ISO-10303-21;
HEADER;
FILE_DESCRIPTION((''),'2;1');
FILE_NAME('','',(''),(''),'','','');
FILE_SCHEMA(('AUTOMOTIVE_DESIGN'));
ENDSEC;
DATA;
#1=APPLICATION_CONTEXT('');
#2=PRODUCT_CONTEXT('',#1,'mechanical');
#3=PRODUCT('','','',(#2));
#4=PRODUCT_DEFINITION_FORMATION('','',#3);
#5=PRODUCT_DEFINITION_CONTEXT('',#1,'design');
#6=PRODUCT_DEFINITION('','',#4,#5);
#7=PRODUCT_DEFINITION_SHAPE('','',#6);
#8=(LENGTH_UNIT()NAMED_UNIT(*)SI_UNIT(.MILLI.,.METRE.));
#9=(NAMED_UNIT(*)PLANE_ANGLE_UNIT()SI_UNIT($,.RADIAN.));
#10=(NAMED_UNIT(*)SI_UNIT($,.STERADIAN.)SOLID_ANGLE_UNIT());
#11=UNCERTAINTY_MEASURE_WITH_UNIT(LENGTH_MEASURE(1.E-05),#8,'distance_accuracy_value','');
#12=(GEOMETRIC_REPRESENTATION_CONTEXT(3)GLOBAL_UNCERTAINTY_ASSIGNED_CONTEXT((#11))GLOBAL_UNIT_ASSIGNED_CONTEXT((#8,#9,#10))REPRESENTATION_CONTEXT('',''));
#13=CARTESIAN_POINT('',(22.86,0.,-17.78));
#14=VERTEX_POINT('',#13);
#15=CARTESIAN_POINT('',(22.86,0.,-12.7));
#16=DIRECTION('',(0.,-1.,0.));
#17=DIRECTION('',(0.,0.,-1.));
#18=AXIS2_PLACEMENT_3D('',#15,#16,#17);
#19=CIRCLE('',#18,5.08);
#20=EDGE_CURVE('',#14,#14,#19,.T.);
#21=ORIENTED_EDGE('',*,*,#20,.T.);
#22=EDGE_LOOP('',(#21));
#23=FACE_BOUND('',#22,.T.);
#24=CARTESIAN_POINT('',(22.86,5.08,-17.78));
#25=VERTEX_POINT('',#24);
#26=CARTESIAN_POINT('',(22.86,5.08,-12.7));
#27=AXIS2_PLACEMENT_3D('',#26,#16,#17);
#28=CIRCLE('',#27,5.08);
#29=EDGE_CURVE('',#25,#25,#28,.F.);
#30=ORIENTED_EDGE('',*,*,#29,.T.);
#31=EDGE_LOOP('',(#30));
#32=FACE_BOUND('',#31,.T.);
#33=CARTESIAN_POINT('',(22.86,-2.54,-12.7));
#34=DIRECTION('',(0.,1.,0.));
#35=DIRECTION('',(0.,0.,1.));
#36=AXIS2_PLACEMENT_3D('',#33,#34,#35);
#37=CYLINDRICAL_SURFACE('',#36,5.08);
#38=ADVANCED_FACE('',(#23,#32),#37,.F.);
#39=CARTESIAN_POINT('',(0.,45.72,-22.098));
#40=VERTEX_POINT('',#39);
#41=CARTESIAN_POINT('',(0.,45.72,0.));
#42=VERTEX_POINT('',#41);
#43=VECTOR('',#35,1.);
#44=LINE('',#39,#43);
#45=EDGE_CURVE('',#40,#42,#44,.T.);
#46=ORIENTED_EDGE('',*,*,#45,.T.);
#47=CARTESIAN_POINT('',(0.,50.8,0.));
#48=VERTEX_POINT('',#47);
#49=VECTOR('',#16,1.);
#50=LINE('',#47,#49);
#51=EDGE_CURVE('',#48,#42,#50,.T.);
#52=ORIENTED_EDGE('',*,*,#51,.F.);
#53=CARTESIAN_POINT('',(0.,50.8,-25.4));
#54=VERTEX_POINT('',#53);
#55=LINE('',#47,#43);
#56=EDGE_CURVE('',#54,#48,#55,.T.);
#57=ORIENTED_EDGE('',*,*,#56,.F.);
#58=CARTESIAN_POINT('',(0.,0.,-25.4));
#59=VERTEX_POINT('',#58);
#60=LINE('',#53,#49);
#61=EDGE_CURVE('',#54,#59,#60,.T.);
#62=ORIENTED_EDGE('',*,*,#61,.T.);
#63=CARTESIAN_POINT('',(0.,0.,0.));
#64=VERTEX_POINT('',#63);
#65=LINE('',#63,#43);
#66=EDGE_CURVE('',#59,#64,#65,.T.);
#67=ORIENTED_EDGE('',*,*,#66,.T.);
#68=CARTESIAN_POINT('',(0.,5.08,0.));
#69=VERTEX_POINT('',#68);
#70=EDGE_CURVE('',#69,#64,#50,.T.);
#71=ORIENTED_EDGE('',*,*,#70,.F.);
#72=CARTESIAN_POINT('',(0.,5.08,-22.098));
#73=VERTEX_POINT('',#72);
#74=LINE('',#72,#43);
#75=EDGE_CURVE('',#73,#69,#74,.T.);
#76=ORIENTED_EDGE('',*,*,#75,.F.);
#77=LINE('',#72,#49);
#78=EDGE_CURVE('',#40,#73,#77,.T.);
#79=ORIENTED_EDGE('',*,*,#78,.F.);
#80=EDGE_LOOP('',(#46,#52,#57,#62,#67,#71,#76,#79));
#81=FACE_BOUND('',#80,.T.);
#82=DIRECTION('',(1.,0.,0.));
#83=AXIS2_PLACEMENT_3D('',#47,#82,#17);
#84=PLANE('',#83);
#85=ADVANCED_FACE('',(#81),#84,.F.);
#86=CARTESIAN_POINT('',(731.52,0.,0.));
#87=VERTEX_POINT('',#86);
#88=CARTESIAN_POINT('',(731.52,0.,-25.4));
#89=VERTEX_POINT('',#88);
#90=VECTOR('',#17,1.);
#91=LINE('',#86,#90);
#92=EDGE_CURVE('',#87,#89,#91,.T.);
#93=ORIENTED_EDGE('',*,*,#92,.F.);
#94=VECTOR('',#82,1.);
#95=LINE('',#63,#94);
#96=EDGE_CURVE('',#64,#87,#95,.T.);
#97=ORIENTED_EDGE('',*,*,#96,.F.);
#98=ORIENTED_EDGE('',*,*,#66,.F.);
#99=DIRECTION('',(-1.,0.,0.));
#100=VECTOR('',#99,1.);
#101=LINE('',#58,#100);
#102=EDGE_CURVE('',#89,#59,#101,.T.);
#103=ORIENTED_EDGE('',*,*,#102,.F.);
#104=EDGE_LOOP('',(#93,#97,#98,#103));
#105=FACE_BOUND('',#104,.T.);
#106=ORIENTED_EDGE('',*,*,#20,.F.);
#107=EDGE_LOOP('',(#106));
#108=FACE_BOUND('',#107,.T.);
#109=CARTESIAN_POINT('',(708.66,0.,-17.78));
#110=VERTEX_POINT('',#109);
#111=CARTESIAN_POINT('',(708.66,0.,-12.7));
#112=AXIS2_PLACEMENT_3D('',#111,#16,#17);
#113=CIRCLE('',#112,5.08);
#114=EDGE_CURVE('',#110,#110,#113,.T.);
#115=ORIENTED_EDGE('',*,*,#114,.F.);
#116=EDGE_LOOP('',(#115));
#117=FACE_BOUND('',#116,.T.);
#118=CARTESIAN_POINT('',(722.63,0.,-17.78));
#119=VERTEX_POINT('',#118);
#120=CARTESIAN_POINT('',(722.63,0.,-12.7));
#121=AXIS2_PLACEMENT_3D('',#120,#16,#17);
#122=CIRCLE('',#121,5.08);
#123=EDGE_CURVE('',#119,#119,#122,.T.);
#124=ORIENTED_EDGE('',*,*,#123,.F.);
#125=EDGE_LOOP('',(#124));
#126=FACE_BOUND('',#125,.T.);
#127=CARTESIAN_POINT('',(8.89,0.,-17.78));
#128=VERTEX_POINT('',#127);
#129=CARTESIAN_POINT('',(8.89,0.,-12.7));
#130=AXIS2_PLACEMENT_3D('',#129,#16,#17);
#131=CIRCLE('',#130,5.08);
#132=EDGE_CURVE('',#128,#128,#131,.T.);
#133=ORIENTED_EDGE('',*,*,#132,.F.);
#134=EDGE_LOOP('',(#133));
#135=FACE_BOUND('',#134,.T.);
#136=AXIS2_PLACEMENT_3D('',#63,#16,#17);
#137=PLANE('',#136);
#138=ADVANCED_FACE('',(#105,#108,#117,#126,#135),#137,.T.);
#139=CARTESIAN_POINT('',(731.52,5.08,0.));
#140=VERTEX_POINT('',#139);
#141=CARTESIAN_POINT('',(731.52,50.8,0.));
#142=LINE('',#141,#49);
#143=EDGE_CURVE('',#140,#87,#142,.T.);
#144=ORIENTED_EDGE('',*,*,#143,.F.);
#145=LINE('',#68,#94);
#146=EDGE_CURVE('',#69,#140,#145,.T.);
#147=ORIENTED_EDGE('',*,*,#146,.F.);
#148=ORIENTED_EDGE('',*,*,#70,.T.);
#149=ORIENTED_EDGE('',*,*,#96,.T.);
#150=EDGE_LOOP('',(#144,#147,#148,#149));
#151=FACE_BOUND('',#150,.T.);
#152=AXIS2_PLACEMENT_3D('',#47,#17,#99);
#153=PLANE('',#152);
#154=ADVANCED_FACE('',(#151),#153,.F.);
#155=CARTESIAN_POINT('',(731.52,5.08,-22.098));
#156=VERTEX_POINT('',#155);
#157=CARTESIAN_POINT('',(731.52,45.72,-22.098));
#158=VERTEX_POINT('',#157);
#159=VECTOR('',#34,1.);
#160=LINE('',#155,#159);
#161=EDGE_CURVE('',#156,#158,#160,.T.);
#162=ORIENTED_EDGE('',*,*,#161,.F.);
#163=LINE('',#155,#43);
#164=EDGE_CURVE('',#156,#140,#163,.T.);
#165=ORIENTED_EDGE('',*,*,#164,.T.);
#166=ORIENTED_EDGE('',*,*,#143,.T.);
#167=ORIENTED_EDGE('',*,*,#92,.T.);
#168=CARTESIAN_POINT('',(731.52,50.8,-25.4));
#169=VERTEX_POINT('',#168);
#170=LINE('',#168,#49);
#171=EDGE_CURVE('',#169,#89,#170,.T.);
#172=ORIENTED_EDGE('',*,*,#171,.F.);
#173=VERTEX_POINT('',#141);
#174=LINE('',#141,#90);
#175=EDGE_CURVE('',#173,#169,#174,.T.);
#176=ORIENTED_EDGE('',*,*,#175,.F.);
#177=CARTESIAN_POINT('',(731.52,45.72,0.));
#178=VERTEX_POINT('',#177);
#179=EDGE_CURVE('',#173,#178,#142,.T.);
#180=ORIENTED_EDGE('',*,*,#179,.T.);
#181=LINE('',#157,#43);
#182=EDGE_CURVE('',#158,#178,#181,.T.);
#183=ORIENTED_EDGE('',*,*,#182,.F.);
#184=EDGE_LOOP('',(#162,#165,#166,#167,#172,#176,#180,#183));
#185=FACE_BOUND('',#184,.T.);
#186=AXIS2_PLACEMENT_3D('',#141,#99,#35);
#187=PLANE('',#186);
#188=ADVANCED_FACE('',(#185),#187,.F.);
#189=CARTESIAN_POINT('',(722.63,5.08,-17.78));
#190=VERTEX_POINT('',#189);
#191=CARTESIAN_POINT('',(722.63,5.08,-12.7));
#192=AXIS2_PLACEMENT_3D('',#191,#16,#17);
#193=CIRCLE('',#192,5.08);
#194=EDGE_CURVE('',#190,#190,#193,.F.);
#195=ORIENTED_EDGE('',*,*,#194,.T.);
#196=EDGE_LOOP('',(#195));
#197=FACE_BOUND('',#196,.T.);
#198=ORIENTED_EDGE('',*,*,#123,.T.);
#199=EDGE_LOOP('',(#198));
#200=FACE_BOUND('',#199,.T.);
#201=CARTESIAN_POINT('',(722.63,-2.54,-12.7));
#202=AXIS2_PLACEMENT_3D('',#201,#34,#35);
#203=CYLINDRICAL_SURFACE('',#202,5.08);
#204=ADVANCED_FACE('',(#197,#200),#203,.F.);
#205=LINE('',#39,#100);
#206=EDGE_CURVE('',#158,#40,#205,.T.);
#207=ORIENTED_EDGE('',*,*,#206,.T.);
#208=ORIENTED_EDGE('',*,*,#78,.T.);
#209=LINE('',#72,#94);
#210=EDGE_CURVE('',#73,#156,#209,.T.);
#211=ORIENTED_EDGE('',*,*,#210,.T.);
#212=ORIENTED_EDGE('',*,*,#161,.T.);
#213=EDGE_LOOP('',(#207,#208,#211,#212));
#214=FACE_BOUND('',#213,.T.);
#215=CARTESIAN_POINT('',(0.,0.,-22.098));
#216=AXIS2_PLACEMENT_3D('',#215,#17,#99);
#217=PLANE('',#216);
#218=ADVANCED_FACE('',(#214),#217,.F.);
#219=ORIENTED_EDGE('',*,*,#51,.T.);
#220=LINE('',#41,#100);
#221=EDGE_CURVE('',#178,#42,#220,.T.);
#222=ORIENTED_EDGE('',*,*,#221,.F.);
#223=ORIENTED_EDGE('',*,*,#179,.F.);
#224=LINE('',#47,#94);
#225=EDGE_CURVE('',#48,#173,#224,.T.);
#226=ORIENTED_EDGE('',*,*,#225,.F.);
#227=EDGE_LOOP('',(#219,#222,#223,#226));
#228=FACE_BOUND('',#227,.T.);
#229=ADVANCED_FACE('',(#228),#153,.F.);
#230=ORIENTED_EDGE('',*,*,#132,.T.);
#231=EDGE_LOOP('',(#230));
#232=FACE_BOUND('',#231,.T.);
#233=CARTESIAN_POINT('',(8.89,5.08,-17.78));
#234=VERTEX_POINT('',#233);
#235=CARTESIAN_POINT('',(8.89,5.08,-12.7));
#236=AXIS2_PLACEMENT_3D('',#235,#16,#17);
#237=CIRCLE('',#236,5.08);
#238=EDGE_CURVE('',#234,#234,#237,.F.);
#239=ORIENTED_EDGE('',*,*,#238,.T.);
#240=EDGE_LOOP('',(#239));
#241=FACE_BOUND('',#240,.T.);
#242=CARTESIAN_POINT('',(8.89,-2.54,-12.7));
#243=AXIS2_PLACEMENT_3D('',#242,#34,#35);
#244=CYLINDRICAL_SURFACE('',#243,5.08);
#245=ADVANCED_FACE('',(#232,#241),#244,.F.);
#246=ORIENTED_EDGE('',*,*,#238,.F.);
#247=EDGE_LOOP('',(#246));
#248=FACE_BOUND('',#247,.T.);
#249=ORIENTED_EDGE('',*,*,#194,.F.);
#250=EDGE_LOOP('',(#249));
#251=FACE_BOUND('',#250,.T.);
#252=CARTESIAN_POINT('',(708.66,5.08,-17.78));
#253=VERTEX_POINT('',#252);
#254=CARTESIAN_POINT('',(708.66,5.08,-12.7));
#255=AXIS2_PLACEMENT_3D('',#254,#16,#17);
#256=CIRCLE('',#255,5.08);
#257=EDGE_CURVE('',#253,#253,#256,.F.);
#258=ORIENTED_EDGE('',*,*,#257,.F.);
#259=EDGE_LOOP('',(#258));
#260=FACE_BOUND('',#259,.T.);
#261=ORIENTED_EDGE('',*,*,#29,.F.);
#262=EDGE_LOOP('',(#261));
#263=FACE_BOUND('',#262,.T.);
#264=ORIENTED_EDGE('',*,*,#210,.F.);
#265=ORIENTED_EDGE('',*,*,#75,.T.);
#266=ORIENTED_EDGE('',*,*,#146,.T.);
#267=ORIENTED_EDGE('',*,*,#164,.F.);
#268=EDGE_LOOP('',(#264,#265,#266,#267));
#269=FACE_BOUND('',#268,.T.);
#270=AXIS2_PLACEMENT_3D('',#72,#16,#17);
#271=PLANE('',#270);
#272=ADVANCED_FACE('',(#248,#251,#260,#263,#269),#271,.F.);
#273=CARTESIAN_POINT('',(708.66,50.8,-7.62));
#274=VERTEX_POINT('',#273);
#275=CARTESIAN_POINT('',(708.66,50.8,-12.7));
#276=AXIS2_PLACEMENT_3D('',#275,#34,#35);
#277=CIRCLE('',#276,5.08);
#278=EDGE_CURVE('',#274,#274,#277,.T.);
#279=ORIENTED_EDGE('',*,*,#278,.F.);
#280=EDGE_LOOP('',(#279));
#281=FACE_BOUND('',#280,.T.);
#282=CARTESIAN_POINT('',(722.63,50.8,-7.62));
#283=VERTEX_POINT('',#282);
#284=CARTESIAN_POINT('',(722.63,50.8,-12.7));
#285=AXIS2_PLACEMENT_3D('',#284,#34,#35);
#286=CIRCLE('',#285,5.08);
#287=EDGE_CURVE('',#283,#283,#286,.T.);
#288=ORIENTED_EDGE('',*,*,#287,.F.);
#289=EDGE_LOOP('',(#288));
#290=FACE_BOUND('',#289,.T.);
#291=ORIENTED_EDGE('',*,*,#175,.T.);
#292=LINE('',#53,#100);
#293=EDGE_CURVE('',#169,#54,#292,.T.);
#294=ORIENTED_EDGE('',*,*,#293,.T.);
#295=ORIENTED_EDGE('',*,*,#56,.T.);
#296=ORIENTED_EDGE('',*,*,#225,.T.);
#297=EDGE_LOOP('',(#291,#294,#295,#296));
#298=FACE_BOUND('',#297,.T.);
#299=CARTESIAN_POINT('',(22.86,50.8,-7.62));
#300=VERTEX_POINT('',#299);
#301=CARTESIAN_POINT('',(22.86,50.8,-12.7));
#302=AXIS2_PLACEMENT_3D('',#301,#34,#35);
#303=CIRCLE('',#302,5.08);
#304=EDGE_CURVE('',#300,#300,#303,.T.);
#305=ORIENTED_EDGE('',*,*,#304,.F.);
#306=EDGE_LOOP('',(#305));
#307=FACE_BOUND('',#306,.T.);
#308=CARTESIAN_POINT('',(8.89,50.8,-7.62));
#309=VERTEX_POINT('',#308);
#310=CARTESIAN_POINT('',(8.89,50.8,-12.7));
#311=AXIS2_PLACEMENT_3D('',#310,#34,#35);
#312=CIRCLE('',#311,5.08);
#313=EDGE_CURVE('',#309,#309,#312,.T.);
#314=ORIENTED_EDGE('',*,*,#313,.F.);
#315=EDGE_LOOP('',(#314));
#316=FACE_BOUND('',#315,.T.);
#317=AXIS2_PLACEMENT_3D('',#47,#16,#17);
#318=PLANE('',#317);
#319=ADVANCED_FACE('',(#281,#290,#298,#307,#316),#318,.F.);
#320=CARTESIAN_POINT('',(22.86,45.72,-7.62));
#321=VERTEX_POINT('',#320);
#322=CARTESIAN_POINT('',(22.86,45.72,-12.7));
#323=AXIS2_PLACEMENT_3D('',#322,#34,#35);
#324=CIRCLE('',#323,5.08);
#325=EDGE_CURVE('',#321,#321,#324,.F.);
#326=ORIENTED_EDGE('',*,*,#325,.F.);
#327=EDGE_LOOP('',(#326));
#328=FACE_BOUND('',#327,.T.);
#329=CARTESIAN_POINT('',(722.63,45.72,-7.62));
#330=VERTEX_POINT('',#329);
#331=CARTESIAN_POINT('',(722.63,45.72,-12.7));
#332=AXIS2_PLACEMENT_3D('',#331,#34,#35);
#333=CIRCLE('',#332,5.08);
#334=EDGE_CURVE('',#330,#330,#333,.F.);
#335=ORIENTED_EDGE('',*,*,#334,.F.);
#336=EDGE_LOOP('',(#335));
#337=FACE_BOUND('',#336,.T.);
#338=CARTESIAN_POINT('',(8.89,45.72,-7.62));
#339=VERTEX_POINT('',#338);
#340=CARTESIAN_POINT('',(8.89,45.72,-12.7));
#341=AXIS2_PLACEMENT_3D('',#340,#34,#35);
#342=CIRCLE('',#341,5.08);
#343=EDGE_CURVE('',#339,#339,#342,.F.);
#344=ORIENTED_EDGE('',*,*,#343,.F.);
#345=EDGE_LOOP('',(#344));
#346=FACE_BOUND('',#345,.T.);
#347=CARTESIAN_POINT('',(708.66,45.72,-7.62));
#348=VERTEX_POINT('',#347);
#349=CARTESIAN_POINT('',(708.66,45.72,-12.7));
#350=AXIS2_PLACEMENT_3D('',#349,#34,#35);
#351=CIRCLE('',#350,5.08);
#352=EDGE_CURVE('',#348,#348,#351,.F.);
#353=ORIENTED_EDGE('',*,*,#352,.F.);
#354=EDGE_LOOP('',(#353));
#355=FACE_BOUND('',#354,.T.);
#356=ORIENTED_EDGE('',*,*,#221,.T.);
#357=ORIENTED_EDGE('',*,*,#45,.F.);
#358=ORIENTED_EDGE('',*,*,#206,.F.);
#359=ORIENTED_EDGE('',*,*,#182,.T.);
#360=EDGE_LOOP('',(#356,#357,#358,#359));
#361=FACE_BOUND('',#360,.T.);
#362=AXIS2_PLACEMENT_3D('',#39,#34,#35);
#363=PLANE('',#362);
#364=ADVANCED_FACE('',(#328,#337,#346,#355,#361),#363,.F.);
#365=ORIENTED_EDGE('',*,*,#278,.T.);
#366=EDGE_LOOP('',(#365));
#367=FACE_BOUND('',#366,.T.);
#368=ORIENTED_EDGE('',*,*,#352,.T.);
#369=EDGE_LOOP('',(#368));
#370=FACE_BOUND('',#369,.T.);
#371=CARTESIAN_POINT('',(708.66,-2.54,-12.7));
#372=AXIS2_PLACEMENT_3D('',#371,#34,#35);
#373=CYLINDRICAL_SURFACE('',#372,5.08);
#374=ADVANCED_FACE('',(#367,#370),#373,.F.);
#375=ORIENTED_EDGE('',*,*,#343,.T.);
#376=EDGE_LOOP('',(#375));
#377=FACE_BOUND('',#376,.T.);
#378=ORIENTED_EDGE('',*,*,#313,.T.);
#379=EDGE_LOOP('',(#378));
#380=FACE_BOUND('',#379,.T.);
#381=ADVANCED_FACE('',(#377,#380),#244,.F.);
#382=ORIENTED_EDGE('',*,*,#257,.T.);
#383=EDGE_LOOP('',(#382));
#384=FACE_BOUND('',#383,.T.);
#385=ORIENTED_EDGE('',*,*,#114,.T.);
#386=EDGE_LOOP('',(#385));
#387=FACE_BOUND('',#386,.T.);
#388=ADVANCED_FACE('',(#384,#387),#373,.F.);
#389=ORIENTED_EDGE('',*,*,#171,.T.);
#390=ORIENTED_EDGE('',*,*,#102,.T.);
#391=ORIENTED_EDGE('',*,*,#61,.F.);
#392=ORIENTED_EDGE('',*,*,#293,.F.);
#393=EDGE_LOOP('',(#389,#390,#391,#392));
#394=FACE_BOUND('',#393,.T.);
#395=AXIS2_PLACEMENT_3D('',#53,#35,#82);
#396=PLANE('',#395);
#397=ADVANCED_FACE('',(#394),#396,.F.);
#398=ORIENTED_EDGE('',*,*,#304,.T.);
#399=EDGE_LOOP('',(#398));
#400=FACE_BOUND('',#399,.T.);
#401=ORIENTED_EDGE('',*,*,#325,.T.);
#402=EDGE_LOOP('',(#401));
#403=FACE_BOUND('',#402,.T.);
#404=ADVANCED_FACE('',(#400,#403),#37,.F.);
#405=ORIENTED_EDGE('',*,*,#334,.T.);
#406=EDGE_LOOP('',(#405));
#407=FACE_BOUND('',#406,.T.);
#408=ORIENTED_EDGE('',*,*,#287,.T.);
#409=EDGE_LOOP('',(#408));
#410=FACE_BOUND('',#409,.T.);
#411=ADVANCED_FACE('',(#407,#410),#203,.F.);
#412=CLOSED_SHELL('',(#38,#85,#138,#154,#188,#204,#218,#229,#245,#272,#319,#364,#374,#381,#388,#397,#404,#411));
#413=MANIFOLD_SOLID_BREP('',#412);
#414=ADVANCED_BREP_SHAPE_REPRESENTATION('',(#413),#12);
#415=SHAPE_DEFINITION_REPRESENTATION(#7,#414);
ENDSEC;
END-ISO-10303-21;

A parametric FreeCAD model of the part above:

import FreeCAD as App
import Part
import Sketcher
Q = App.Units.Quantity


def add_polygon(sketch, points):
    """Adds a closed chain of lines whose ends are joined by coincident constraints."""
    first, n = sketch.GeometryCount, len(points)
    for a, b in zip(points, points[1:] + points[:1]):
        sketch.addGeometry(Part.LineSegment(App.Vector(*a, 0), App.Vector(*b, 0)), False)
    for i in range(n):
        sketch.addConstraint(Sketcher.Constraint("Coincident", first + i, 2, first + (i + 1) % n, 1))

doc = App.newDocument("Part")
params = doc.addObject("Spreadsheet::Sheet", "Params")
for row, (alias, value) in enumerate([
    ("sketch1_height", "1 in"),
    ("sketch1_width", "28.8 in"),
    ("pad1_length", "2 in"),
    ("sketch2_diameter", "0.4 in"),
    ("pocket1_length", "2.1 in"),
    ("sketch3_width", "28.8 in"),
    ("sketch3_height", "1.6 in"),
    ("pocket2_length", "0.87 in"),
], start=1):
    params.set(f"A{row}", alias)
    params.set(f"B{row}", "=" + value)
    params.setAlias(f"B{row}", alias)

body = doc.addObject("PartDesign::Body", "Body")

# Sketch on XZ plane
sketch1 = body.newObject("Sketcher::SketchObject", "Sketch")
sketch1.AttachmentSupport = (doc.getObject("XZ_Plane"), [""])
sketch1.MapMode = "FlatFace"
add_polygon(sketch1, [(0, -25), (0, 0), (732, 0), (732, -25)])  # lines 0-3
sketch1.addConstraint([
    Sketcher.Constraint("Vertical", 0),
    Sketcher.Constraint("Horizontal", 1),
    Sketcher.Constraint("Vertical", 2),
    Sketcher.Constraint("Horizontal", 3),
    Sketcher.Constraint("Coincident", 0, 2, -1, 1),
    Sketcher.Constraint("DistanceY", 0, 1, 0, 2, Q("1 in")),
    Sketcher.Constraint("DistanceX", 1, 1, 1, 2, Q("28.8 in")),
])
sketch1.setExpression("Constraints[9]", "Params.sketch1_height")
sketch1.setExpression("Constraints[10]", "Params.sketch1_width")
pad1 = body.newObject("PartDesign::Pad", "Pad")
pad1.Profile = sketch1
pad1.setExpression("Length", "Params.pad1_length")
pad1.Reversed = True

# Sketch on XZ plane
sketch2 = body.newObject("Sketcher::SketchObject", "Sketch001")
sketch2.AttachmentSupport = (doc.getObject("XZ_Plane"), [""])
sketch2.MapMode = "FlatFace"
sketch2.AttachmentOffset = App.Placement(App.Vector(0, 0, -2 * 25.4), App.Rotation())
sketch2.addGeometry([
    Part.Circle(App.Vector(9, -13, 0), App.Vector(0, 0, 1), 5),
    Part.Circle(App.Vector(23, -13, 0), App.Vector(0, 0, 1), 5),
    Part.Circle(App.Vector(723, -13, 0), App.Vector(0, 0, 1), 5),
    Part.Circle(App.Vector(709, -13, 0), App.Vector(0, 0, 1), 5),
], False)
sketch2.addConstraint([
    Sketcher.Constraint("Equal", 0, 1),
    Sketcher.Constraint("Equal", 1, 2),
    Sketcher.Constraint("Equal", 2, 3),
    Sketcher.Constraint("Horizontal", 0, 3, 1, 3),
    Sketcher.Constraint("Horizontal", 1, 3, 2, 3),
    Sketcher.Constraint("Horizontal", 2, 3, 3, 3),
    Sketcher.Constraint("Diameter", 0, Q("0.4 in")),
    Sketcher.Constraint("DistanceX", 1, 3, 3, 3, Q("27 in")),
    Sketcher.Constraint("DistanceY", 0, 3, -1, 1, Q("0.5 in")),
    Sketcher.Constraint("DistanceX", -1, 1, 1, 3, Q("0.9 in")),
    Sketcher.Constraint("DistanceX", 0, 3, 2, 3, Q("28.1 in")),
    Sketcher.Constraint("DistanceX", -1, 1, 0, 3, Q("0.35 in")),
])
sketch2.setExpression("Constraints[6]", "Params.sketch2_diameter")
pocket1 = body.newObject("PartDesign::Pocket", "Pocket")
pocket1.Profile = sketch2
pocket1.setExpression("Length", "Params.pocket1_length")
pocket1.Reversed = True

# Sketch on XY plane
sketch3 = body.newObject("Sketcher::SketchObject", "Sketch002")
sketch3.AttachmentSupport = (doc.getObject("XY_Plane"), [""])
sketch3.MapMode = "FlatFace"
add_polygon(sketch3, [(0, 46), (0, 5), (732, 5), (732, 46)])  # lines 0-3
sketch3.addConstraint([
    Sketcher.Constraint("Vertical", 0),
    Sketcher.Constraint("Horizontal", 1),
    Sketcher.Constraint("Vertical", 2),
    Sketcher.Constraint("Horizontal", 3),
    Sketcher.Constraint("PointOnObject", 0, 2, -2),
    Sketcher.Constraint("DistanceX", 1, 1, 1, 2, Q("28.8 in")),
    Sketcher.Constraint("DistanceY", 0, 2, 0, 1, Q("1.6 in")),
    Sketcher.Constraint("DistanceY", -1, 1, 0, 2, Q("0.2 in")),
])
sketch3.setExpression("Constraints[9]", "Params.sketch3_width")
sketch3.setExpression("Constraints[10]", "Params.sketch3_height")
pocket2 = body.newObject("PartDesign::Pocket", "Pocket001")
pocket2.Profile = sketch3
pocket2.setExpression("Length", "Params.pocket2_length")

doc.recompute()
